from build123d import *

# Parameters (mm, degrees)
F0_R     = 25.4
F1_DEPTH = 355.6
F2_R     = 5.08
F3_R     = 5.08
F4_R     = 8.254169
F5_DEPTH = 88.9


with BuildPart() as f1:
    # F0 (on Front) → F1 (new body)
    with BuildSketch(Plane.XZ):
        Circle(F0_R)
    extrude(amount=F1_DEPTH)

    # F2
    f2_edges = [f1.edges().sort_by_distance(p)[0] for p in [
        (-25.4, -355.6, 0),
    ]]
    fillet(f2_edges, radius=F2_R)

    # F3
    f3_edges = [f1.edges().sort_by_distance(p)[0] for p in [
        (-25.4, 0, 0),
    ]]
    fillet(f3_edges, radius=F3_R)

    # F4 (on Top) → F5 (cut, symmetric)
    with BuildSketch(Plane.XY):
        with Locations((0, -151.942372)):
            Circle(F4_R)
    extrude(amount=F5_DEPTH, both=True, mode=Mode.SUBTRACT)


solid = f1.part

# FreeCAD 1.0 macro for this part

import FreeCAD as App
import Part
import Sketcher

V = App.Vector
Q = App.Units.Quantity


def edges_at(feature, points):
    """Names of the edges that pass closest to the given points."""
    edges = feature.Shape.Edges
    near = lambda p: min(range(len(edges)), key=lambda i: edges[i].distToShape(Part.Vertex(*p))[0])
    return sorted({f"Edge{near(p) + 1}" for p in points})

doc = App.newDocument("Part")
params = doc.addObject("Spreadsheet::Sheet", "Params")
for row, (alias, value) in enumerate([
    ("sketch1_diameter", "2 in"),
    ("pad1_length", "14 in"),
    ("fillet_radius", "0.2 in"),
    ("fillet2_radius", "0.2 in"),
    ("pocket1_length", "7 in"),
], start=1):
    params.set(f"A{row}", alias)
    params.set(f"B{row}", "=" + value)
    params.setAlias(f"B{row}", alias)

body = doc.addObject("PartDesign::Body", "Body")

sketch1 = doc.addObject("Sketcher::SketchObject", "Sketch")
body.addObject(sketch1)
sketch1.AttachmentSupport = (doc.XZ_Plane, [""])
sketch1.MapMode = "FlatFace"
sketch1.addGeometry(Part.Circle(V(0, 0, 0), V(0, 0, 1), 25.4), False)
sketch1.addConstraint(Sketcher.Constraint("Coincident", 0, 3, -1, 1))
sketch1.addConstraint(Sketcher.Constraint("Diameter", 0, Q("2 in")))
sketch1.setExpression("Constraints[1]", "Params.sketch1_diameter")
pad1 = doc.addObject("PartDesign::Pad", "Pad")
body.addObject(pad1)
pad1.Profile = sketch1
pad1.setExpression("Length", "Params.pad1_length")
doc.recompute()

fillet = doc.addObject("PartDesign::Fillet", "Fillet")
body.addObject(fillet)
fillet.Base = (pad1, edges_at(pad1, [(-25.4, -355.6, 0)]))
fillet.setExpression("Radius", "Params.fillet_radius")
doc.recompute()

fillet2 = doc.addObject("PartDesign::Fillet", "Fillet001")
body.addObject(fillet2)
fillet2.Base = (fillet, edges_at(fillet, [(-25.4, 0, 0)]))
fillet2.setExpression("Radius", "Params.fillet2_radius")

sketch2 = doc.addObject("Sketcher::SketchObject", "Sketch001")
body.addObject(sketch2)
sketch2.AttachmentSupport = (doc.XY_Plane, [""])
sketch2.MapMode = "FlatFace"
sketch2.addGeometry(Part.Circle(V(0, -151.942372, 0), V(0, 0, 1), 8.254169), False)
sketch2.addConstraint(Sketcher.Constraint("PointOnObject", 0, 3, -2))
sketch2.addConstraint(Sketcher.Constraint("Diameter", 0, Q("16.508338 mm")))
sketch2.addConstraint(Sketcher.Constraint("DistanceY", 0, 3, -1, 1, Q("151.942372 mm")))
pocket1 = doc.addObject("PartDesign::Pocket", "Pocket")
body.addObject(pocket1)
pocket1.Profile = sketch2
pocket1.setExpression("Length", "Params.pocket1_length")
pocket1.Midplane = True

doc.recompute()
